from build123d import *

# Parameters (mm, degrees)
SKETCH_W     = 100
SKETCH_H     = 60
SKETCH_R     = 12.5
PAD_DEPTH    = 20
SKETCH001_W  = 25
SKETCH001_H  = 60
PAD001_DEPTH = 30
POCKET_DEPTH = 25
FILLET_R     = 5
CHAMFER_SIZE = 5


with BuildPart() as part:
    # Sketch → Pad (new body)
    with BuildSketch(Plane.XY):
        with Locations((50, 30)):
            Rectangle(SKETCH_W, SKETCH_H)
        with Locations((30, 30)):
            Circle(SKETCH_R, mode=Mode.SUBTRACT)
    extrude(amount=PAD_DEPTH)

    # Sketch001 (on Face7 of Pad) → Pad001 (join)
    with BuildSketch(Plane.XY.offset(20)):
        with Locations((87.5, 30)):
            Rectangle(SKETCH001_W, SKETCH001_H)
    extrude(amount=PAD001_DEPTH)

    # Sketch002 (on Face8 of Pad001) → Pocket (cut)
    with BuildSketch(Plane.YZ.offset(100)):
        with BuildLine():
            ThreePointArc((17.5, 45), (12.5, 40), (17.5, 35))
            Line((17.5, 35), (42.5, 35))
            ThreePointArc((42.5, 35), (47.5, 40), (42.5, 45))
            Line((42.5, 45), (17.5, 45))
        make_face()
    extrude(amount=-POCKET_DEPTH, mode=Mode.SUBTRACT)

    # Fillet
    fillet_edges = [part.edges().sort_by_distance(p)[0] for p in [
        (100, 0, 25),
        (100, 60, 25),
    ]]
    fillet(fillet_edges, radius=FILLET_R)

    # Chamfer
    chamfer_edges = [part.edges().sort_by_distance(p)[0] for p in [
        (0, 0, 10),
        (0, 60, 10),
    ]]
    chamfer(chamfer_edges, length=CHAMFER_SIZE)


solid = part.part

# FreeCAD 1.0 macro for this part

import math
import FreeCAD as App
import Part
import Sketcher

V = App.Vector
Q = App.Units.Quantity


def edges_at(feature, points):
    """Names of the edges that pass closest to the given points."""
    edges = feature.Shape.Edges
    near = lambda p: min(range(len(edges)), key=lambda i: edges[i].distToShape(Part.Vertex(*p))[0])
    return sorted({f"Edge{near(p) + 1}" for p in points})

doc = App.newDocument("Part")
body = doc.addObject("PartDesign::Body", "Body")

sketch1 = body.newObject("Sketcher::SketchObject", "Sketch")
sketch1.AttachmentSupport = (doc.getObject("XY_Plane"), [""])
sketch1.MapMode = "FlatFace"
sketch1.addGeometry([
    Part.LineSegment(V(0, 60, 0), V(0, 0, 0)),
    Part.LineSegment(V(0, 0, 0), V(100, 0, 0)),
    Part.LineSegment(V(100, 0, 0), V(100, 60, 0)),
    Part.LineSegment(V(100, 60, 0), V(0, 60, 0)),
    Part.Circle(V(30, 30, 0), V(0, 0, 1), 12),
], False)
sketch1.addConstraint([
    Sketcher.Constraint("Coincident", 0, 2, 1, 1),
    Sketcher.Constraint("Coincident", 1, 2, 2, 1),
    Sketcher.Constraint("Coincident", 2, 2, 3, 1),
    Sketcher.Constraint("Coincident", 3, 2, 0, 1),
    Sketcher.Constraint("Vertical", 0),
    Sketcher.Constraint("Horizontal", 1),
    Sketcher.Constraint("Vertical", 2),
    Sketcher.Constraint("Horizontal", 3),
    Sketcher.Constraint("Coincident", 0, 2, -1, 1),
    Sketcher.Constraint("Diameter", 4, Q("25 mm")),
    Sketcher.Constraint("DistanceX", 1, 1, 1, 2, Q("100 mm")),
    Sketcher.Constraint("DistanceY", 0, 2, 0, 1, Q("60 mm")),
    Sketcher.Constraint("DistanceX", -1, 1, 4, 3, Q("30 mm")),
    Sketcher.Constraint("DistanceY", -1, 1, 4, 3, Q("30 mm")),
])
pad1 = body.newObject("PartDesign::Pad", "Pad")
pad1.Profile = sketch1
pad1.Length = 20

sketch2 = body.newObject("Sketcher::SketchObject", "Sketch001")
sketch2.AttachmentSupport = (doc.getObject("XY_Plane"), [""])
sketch2.MapMode = "FlatFace"
sketch2.AttachmentOffset = App.Placement(V(0, 0, 20), App.Rotation())
sketch2.addGeometry([
    Part.LineSegment(V(75, 60, 0), V(75, 0, 0)),
    Part.LineSegment(V(75, 0, 0), V(100, 0, 0)),
    Part.LineSegment(V(100, 0, 0), V(100, 60, 0)),
    Part.LineSegment(V(100, 60, 0), V(75, 60, 0)),
], False)
sketch2.addConstraint([
    Sketcher.Constraint("Coincident", 0, 2, 1, 1),
    Sketcher.Constraint("Coincident", 1, 2, 2, 1),
    Sketcher.Constraint("Coincident", 2, 2, 3, 1),
    Sketcher.Constraint("Coincident", 3, 2, 0, 1),
    Sketcher.Constraint("Vertical", 0),
    Sketcher.Constraint("Horizontal", 1),
    Sketcher.Constraint("Vertical", 2),
    Sketcher.Constraint("Horizontal", 3),
    Sketcher.Constraint("PointOnObject", 0, 2, -1),
    Sketcher.Constraint("DistanceX", 1, 1, 1, 2, Q("25 mm")),
    Sketcher.Constraint("DistanceY", 0, 2, 0, 1, Q("60 mm")),
    Sketcher.Constraint("DistanceX", -1, 1, 0, 2, Q("75 mm")),
])
pad2 = body.newObject("PartDesign::Pad", "Pad001")
pad2.Profile = sketch2
pad2.Length = 30

sketch3 = body.newObject("Sketcher::SketchObject", "Sketch002")
sketch3.AttachmentSupport = (doc.getObject("YZ_Plane"), [""])
sketch3.MapMode = "FlatFace"
sketch3.AttachmentOffset = App.Placement(V(0, 0, 100), App.Rotation())
sketch3.addGeometry([
    Part.ArcOfCircle(Part.Circle(V(18, 40, 0), V(0, 0, 1), 5), math.radians(90), math.radians(270)),
    Part.LineSegment(V(18, 35, 0), V(42, 35, 0)),
    Part.ArcOfCircle(Part.Circle(V(42, 40, 0), V(0, 0, 1), 5), math.radians(-90), math.radians(90)),
    Part.LineSegment(V(42, 45, 0), V(18, 45, 0)),
], False)
sketch3.addConstraint([
    Sketcher.Constraint("Tangent", 0, 2, 1, 1),
    Sketcher.Constraint("Tangent", 1, 2, 2, 1),
    Sketcher.Constraint("Tangent", 2, 2, 3, 1),
    Sketcher.Constraint("Tangent", 3, 2, 0, 1),
    Sketcher.Constraint("Horizontal", 1),
    Sketcher.Constraint("Horizontal", 3),
    Sketcher.Constraint("Radius", 0, Q("5 mm")),
    Sketcher.Constraint("DistanceX", 1, 1, 1, 2, Q("25 mm")),
    Sketcher.Constraint("DistanceY", -1, 1, 0, 3, Q("40 mm")),
    Sketcher.Constraint("DistanceX", -1, 1, 0, 3, Q("17.5 mm")),
])
pocket1 = body.newObject("PartDesign::Pocket", "Pocket")
pocket1.Profile = sketch3
pocket1.Length = 25
doc.recompute()

fillet = body.newObject("PartDesign::Fillet", "Fillet")
fillet.Base = (pocket1, edges_at(pocket1, [(100, 0, 25), (100, 60, 25)]))
fillet.Radius = 5
doc.recompute()

chamfer = body.newObject("PartDesign::Chamfer", "Chamfer")
chamfer.Base = (fillet, edges_at(fillet, [(0, 0, 10), (0, 60, 10)]))
chamfer.Size = 5

doc.recompute()
